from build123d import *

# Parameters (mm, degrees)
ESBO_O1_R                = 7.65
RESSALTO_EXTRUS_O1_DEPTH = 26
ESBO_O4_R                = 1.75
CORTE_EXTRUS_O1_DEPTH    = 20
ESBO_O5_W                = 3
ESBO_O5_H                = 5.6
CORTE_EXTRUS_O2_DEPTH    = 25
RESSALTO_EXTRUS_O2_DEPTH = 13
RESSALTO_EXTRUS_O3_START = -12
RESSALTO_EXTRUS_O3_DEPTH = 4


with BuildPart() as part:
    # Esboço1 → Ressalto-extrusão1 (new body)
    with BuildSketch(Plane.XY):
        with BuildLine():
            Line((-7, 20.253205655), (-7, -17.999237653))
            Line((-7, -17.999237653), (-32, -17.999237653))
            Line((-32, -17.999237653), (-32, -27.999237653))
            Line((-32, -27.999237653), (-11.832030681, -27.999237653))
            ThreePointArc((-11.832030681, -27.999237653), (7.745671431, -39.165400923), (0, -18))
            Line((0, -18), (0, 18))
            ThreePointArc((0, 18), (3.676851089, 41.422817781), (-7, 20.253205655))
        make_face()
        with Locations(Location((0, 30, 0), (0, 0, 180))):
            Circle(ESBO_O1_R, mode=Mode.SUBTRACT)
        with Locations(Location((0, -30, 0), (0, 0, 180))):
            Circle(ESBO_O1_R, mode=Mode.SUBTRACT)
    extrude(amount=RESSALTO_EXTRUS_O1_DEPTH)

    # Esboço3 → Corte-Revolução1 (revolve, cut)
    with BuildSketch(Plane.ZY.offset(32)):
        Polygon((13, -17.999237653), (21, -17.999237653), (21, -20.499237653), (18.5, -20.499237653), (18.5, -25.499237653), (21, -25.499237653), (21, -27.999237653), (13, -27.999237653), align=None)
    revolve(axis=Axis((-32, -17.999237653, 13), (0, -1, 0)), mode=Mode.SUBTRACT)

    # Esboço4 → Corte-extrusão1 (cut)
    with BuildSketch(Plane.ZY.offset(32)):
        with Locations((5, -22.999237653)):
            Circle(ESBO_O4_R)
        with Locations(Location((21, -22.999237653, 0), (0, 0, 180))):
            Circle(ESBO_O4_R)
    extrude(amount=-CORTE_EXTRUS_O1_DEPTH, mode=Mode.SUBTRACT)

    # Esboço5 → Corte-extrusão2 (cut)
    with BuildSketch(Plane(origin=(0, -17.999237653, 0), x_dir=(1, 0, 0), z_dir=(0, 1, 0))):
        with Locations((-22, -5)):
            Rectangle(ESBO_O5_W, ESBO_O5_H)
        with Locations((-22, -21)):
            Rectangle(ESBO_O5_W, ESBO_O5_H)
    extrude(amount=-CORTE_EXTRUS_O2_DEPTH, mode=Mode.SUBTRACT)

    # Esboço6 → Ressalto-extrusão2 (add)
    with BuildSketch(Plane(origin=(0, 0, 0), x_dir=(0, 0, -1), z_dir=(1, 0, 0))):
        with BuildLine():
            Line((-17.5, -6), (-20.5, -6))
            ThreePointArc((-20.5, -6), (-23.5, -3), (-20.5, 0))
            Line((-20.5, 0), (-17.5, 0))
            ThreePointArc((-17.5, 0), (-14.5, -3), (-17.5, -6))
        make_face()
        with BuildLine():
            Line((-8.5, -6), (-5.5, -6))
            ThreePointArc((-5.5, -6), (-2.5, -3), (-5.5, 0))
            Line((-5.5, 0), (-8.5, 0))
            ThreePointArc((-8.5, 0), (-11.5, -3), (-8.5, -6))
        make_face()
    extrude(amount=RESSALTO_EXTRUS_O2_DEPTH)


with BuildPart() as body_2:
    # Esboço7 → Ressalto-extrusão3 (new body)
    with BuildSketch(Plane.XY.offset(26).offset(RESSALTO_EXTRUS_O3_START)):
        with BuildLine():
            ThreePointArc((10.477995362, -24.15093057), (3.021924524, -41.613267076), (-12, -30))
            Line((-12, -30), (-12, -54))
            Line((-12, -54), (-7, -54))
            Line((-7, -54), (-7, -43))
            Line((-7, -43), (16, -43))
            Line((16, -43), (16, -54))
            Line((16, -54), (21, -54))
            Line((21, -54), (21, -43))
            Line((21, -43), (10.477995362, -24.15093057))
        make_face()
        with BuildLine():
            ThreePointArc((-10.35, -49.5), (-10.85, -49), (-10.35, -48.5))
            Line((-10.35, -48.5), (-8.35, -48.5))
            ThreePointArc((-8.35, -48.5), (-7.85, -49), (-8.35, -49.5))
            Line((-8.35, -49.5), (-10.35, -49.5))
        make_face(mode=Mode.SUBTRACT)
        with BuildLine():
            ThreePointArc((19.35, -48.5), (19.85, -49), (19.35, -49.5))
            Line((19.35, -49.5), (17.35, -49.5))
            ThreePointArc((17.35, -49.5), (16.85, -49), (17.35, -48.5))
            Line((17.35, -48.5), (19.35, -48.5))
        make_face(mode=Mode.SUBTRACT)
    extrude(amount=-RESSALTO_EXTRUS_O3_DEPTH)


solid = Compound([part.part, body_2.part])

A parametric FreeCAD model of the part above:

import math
import FreeCAD as App
import Part
import Sketcher
from FreeCAD import Vector

doc = App.newDocument("Part")
body = doc.addObject("PartDesign::Body", "Body")

# Sketch on XY plane
sketch1 = body.newObject("Sketcher::SketchObject", "Sketch")
sketch1.AttachmentSupport = (doc.getObject("XY_Plane"), [""])
sketch1.MapMode = "FlatFace"
sketch1.addGeometry([
    Part.LineSegment(Vector(-7, 20, 0), Vector(-7, -18, 0)),  # 0
    Part.LineSegment(Vector(-7, -18, 0), Vector(-32, -18, 0)),  # 1
    Part.LineSegment(Vector(-32, -18, 0), Vector(-32, -28, 0)),  # 2
    Part.LineSegment(Vector(-32, -28, 0), Vector(-12, -28, 0)),  # 3
    Part.ArcOfCircle(Part.Circle(Vector(0, -30, 0), Vector(0, 0, 1), 12), math.radians(170), math.radians(450)),  # 4
    Part.LineSegment(Vector(0, -18, 0), Vector(0, 18, 0)),  # 5
    Part.ArcOfCircle(Part.Circle(Vector(0, 30, 0), Vector(0, 0, 1), 12), math.radians(-90), math.radians(234)),  # 6
    Part.Circle(Vector(0, -30, 0), Vector(0, 0, 1), 8),  # 7
    Part.Circle(Vector(0, 30, 0), Vector(0, 0, 1), 8),  # 8
], False)
sketch1.addConstraint([
    Sketcher.Constraint("Coincident", 0, 2, 1, 1),
    Sketcher.Constraint("Coincident", 1, 2, 2, 1),
    Sketcher.Constraint("Coincident", 2, 2, 3, 1),
    Sketcher.Constraint("Coincident", 3, 2, 4, 1),
    Sketcher.Constraint("Coincident", 4, 2, 5, 1),
    Sketcher.Constraint("Coincident", 5, 2, 6, 1),
    Sketcher.Constraint("Coincident", 6, 2, 0, 1),
    Sketcher.Constraint("Vertical", 0),
    Sketcher.Constraint("Horizontal", 1),
    Sketcher.Constraint("Vertical", 2),
    Sketcher.Constraint("Horizontal", 3),
    Sketcher.Constraint("Vertical", 5),
    Sketcher.Constraint("Coincident", 7, 3, 4, 3),
    Sketcher.Constraint("Coincident", 8, 3, 6, 3),
    Sketcher.Constraint("Equal", 4, 6),
    Sketcher.Constraint("Equal", 7, 8),
    Sketcher.Constraint("Symmetric", 4, 3, 6, 3, -1, 1),
    Sketcher.Constraint("PointOnObject", 4, 3, -2),
    Sketcher.Constraint("PointOnObject", 4, 2, -2),
    Sketcher.Constraint("Radius", 4, 12.0),
    Sketcher.Constraint("Diameter", 7, 15.3),
    Sketcher.Constraint("DistanceX", 1, 2, 1, 1, 25.0),
    Sketcher.Constraint("DistanceY", 2, 2, 2, 1, 10.0),
    Sketcher.Constraint("DistanceY", 5, 1, 5, 2, 36.0),
    Sketcher.Constraint("DistanceX", 0, 2, -1, 1, 7.0),
    Sketcher.Constraint("DistanceX", 3, 1, 3, 2, 20.167969),
])
pad1 = body.newObject("PartDesign::Pad", "Pad")
pad1.Profile = sketch1
pad1.Length = 26

# Sketch on YZ plane
sketch2 = body.newObject("Sketcher::SketchObject", "Sketch001")
sketch2.AttachmentSupport = (doc.getObject("YZ_Plane"), [""])
sketch2.MapMode = "FlatFace"
sketch2.AttachmentOffset = App.Placement(Vector(0, 0, -32), App.Rotation())
sketch2.addGeometry([
    Part.LineSegment(Vector(-18, 21, 0), Vector(-18, 13, 0)),  # 0
    Part.LineSegment(Vector(-18, 13, 0), Vector(-28, 13, 0)),  # 1
    Part.LineSegment(Vector(-28, 13, 0), Vector(-28, 21, 0)),  # 2
    Part.LineSegment(Vector(-28, 21, 0), Vector(-25.5, 21, 0)),  # 3
    Part.LineSegment(Vector(-25.5, 21, 0), Vector(-25.5, 18.5, 0)),  # 4
    Part.LineSegment(Vector(-25.5, 18.5, 0), Vector(-20.5, 18.5, 0)),  # 5
    Part.LineSegment(Vector(-20.5, 18.5, 0), Vector(-20.5, 21, 0)),  # 6
    Part.LineSegment(Vector(-20.5, 21, 0), Vector(-18, 21, 0)),  # 7
], False)
sketch2.addGeometry(Part.LineSegment(Vector(-18, 13, 0), Vector(-28, 13, 0)), True)  # axis
sketch2.addConstraint([
    Sketcher.Constraint("Coincident", 0, 2, 1, 1),
    Sketcher.Constraint("Coincident", 1, 2, 2, 1),
    Sketcher.Constraint("Coincident", 2, 2, 3, 1),
    Sketcher.Constraint("Coincident", 3, 2, 4, 1),
    Sketcher.Constraint("Coincident", 4, 2, 5, 1),
    Sketcher.Constraint("Coincident", 5, 2, 6, 1),
    Sketcher.Constraint("Coincident", 6, 2, 7, 1),
    Sketcher.Constraint("Coincident", 7, 2, 0, 1),
    Sketcher.Constraint("Vertical", 0),
    Sketcher.Constraint("Horizontal", 1),
    Sketcher.Constraint("Vertical", 2),
    Sketcher.Constraint("Horizontal", 3),
    Sketcher.Constraint("Vertical", 4),
    Sketcher.Constraint("Horizontal", 5),
    Sketcher.Constraint("Vertical", 6),
    Sketcher.Constraint("Horizontal", 7),
    Sketcher.Constraint("Horizontal", 8),
    Sketcher.Constraint("Coincident", 8, 1, 0, 2),
    Sketcher.Constraint("Horizontal", 3, 2, 6, 2),
    Sketcher.Constraint("Vertical", 2, 2, 8, 2),
    Sketcher.Constraint("Equal", 3, 7),
    Sketcher.Constraint("Equal", 7, 4),
    Sketcher.Constraint("DistanceX", 1, 2, 1, 1, 10.0),
    Sketcher.Constraint("DistanceX", 5, 1, 5, 2, 5.0),
    Sketcher.Constraint("DistanceY", 0, 2, 0, 1, 8.0),
    Sketcher.Constraint("DistanceY", -1, 1, 0, 2, 13.0),
    Sketcher.Constraint("DistanceX", 0, 2, -1, 1, 17.999238),
])
groove = body.newObject("PartDesign::Groove", "Groove")
groove.Profile = sketch2
groove.ReferenceAxis = (sketch2, ["Axis0"])
groove.Angle = 360

# Sketch on YZ plane
sketch3 = body.newObject("Sketcher::SketchObject", "Sketch002")
sketch3.AttachmentSupport = (doc.getObject("YZ_Plane"), [""])
sketch3.MapMode = "FlatFace"
sketch3.AttachmentOffset = App.Placement(Vector(0, 0, -32), App.Rotation())
sketch3.addGeometry([
    Part.Circle(Vector(-23, 5, 0), Vector(0, 0, 1), 1.8),
    Part.Circle(Vector(-23, 21, 0), Vector(0, 0, 1), 1.8),
], False)
sketch3.addConstraint([
    Sketcher.Constraint("Equal", 0, 1),
    Sketcher.Constraint("Vertical", 0, 3, 1, 3),
    Sketcher.Constraint("Diameter", 0, 3.5),
    Sketcher.Constraint("DistanceY", -1, 1, 0, 3, 5.0),
    Sketcher.Constraint("DistanceY", -1, 1, 1, 3, 21.0),
    Sketcher.Constraint("DistanceX", 0, 3, -1, 1, 22.999238),
])
pocket1 = body.newObject("PartDesign::Pocket", "Pocket")
pocket1.Profile = sketch3
pocket1.Length = 20
pocket1.Reversed = True

# Sketch on XZ plane
sketch4 = body.newObject("Sketcher::SketchObject", "Sketch003")
sketch4.AttachmentSupport = (doc.getObject("XZ_Plane"), [""])
sketch4.MapMode = "FlatFace"
sketch4.AttachmentOffset = App.Placement(Vector(0, 0, 17.999238), App.Rotation())
sketch4.addGeometry([
    Part.LineSegment(Vector(-23.5, 2.2, 0), Vector(-23.5, 7.8, 0)),  # 0
    Part.LineSegment(Vector(-23.5, 7.8, 0), Vector(-20.5, 7.8, 0)),  # 1
    Part.LineSegment(Vector(-20.5, 7.8, 0), Vector(-20.5, 2.2, 0)),  # 2
    Part.LineSegment(Vector(-20.5, 2.2, 0), Vector(-23.5, 2.2, 0)),  # 3
    Part.LineSegment(Vector(-23.5, 18.2, 0), Vector(-23.5, 23.8, 0)),  # 4
    Part.LineSegment(Vector(-23.5, 23.8, 0), Vector(-20.5, 23.8, 0)),  # 5
    Part.LineSegment(Vector(-20.5, 23.8, 0), Vector(-20.5, 18.2, 0)),  # 6
    Part.LineSegment(Vector(-20.5, 18.2, 0), Vector(-23.5, 18.2, 0)),  # 7
], False)
sketch4.addConstraint([
    Sketcher.Constraint("Coincident", 0, 2, 1, 1),
    Sketcher.Constraint("Coincident", 1, 2, 2, 1),
    Sketcher.Constraint("Coincident", 2, 2, 3, 1),
    Sketcher.Constraint("Coincident", 3, 2, 0, 1),
    Sketcher.Constraint("Coincident", 4, 2, 5, 1),
    Sketcher.Constraint("Coincident", 5, 2, 6, 1),
    Sketcher.Constraint("Coincident", 6, 2, 7, 1),
    Sketcher.Constraint("Coincident", 7, 2, 4, 1),
    Sketcher.Constraint("Vertical", 0),
    Sketcher.Constraint("Horizontal", 1),
    Sketcher.Constraint("Vertical", 2),
    Sketcher.Constraint("Horizontal", 3),
    Sketcher.Constraint("Vertical", 4),
    Sketcher.Constraint("Horizontal", 5),
    Sketcher.Constraint("Vertical", 6),
    Sketcher.Constraint("Horizontal", 7),
    Sketcher.Constraint("Vertical", 3, 2, 4, 2),
    Sketcher.Constraint("Vertical", 2, 2, 5, 2),
    Sketcher.Constraint("Equal", 2, 4),
    Sketcher.Constraint("DistanceX", 1, 1, 1, 2, 3.0),
    Sketcher.Constraint("DistanceY", 0, 1, 0, 2, 5.6),
    Sketcher.Constraint("DistanceY", 0, 2, 4, 2, 16.0),
    Sketcher.Constraint("DistanceX", 0, 2, -1, 1, 23.5),
    Sketcher.Constraint("DistanceY", -1, 1, 0, 2, 7.8),
])
pocket2 = body.newObject("PartDesign::Pocket", "Pocket001")
pocket2.Profile = sketch4
pocket2.Length = 25
pocket2.Reversed = True

# Sketch on YZ plane
sketch5 = body.newObject("Sketcher::SketchObject", "Sketch004")
sketch5.AttachmentSupport = (doc.getObject("YZ_Plane"), [""])
sketch5.MapMode = "FlatFace"
sketch5.addGeometry([
    Part.LineSegment(Vector(-6, 20.5, 0), Vector(-6, 17.5, 0)),  # 0
    Part.ArcOfCircle(Part.Circle(Vector(-3, 17.5, 0), Vector(0, 0, 1), 3), math.radians(180), math.radians(360)),  # 1
    Part.LineSegment(Vector(0, 17.5, 0), Vector(0, 20.5, 0)),  # 2
    Part.ArcOfCircle(Part.Circle(Vector(-3, 20.5, 0), Vector(0, 0, 1), 3), math.radians(0), math.radians(180)),  # 3
    Part.LineSegment(Vector(-6, 8.5, 0), Vector(-6, 5.5, 0)),  # 4
    Part.ArcOfCircle(Part.Circle(Vector(-3, 5.5, 0), Vector(0, 0, 1), 3), math.radians(180), math.radians(360)),  # 5
    Part.LineSegment(Vector(0, 5.5, 0), Vector(0, 8.5, 0)),  # 6
    Part.ArcOfCircle(Part.Circle(Vector(-3, 8.5, 0), Vector(0, 0, 1), 3), math.radians(0), math.radians(180)),  # 7
], False)
sketch5.addConstraint([
    Sketcher.Constraint("Tangent", 0, 2, 1, 1),
    Sketcher.Constraint("Tangent", 1, 2, 2, 1),
    Sketcher.Constraint("Tangent", 2, 2, 3, 1),
    Sketcher.Constraint("Tangent", 3, 2, 0, 1),
    Sketcher.Constraint("Tangent", 4, 2, 5, 1),
    Sketcher.Constraint("Tangent", 5, 2, 6, 1),
    Sketcher.Constraint("Tangent", 6, 2, 7, 1),
    Sketcher.Constraint("Tangent", 7, 2, 4, 1),
    Sketcher.Constraint("Vertical", 0),
    Sketcher.Constraint("Vertical", 2),
    Sketcher.Constraint("Vertical", 4),
    Sketcher.Constraint("Vertical", 6),
    Sketcher.Constraint("Equal", 3, 5),
    Sketcher.Constraint("PointOnObject", 1, 2, -2),
    Sketcher.Constraint("PointOnObject", 5, 2, -2),
    Sketcher.Constraint("Equal", 2, 4),
    Sketcher.Constraint("Radius", 1, 3.0),
    Sketcher.Constraint("DistanceY", 0, 2, 0, 1, 3.0),
    Sketcher.Constraint("DistanceY", 5, 3, 1, 3, 12.0),
    Sketcher.Constraint("DistanceY", -1, 1, 1, 3, 17.5),
])
pad2 = body.newObject("PartDesign::Pad", "Pad001")
pad2.Profile = sketch5
pad2.Length = 13
body2 = doc.addObject("PartDesign::Body", "Body001")

# Sketch on XY plane
sketch6 = body2.newObject("Sketcher::SketchObject", "Sketch005")
sketch6.AttachmentSupport = (doc.getObject("XY_Plane001"), [""])
sketch6.MapMode = "FlatFace"
sketch6.AttachmentOffset = App.Placement(Vector(0, 0, 14), App.Rotation())
sketch6.addGeometry([
    Part.ArcOfCircle(Part.Circle(Vector(0, -30, 0), Vector(0, 0, 1), 12), math.radians(180), math.radians(389)),  # 0
    Part.LineSegment(Vector(-12, -30, 0), Vector(-12, -54, 0)),  # 1
    Part.LineSegment(Vector(-12, -54, 0), Vector(-7, -54, 0)),  # 2
    Part.LineSegment(Vector(-7, -54, 0), Vector(-7, -43, 0)),  # 3
    Part.LineSegment(Vector(-7, -43, 0), Vector(16, -43, 0)),  # 4
    Part.LineSegment(Vector(16, -43, 0), Vector(16, -54, 0)),  # 5
    Part.LineSegment(Vector(16, -54, 0), Vector(21, -54, 0)),  # 6
    Part.LineSegment(Vector(21, -54, 0), Vector(21, -43, 0)),  # 7
    Part.LineSegment(Vector(21, -43, 0), Vector(10.5, -24.2, 0)),  # 8
    Part.LineSegment(Vector(-8.3, -49.5, 0), Vector(-10.3, -49.5, 0)),  # 9
    Part.ArcOfCircle(Part.Circle(Vector(-10.3, -49, 0), Vector(0, 0, 1), 0.5), math.radians(90), math.radians(270)),  # 10
    Part.LineSegment(Vector(-10.3, -48.5, 0), Vector(-8.3, -48.5, 0)),  # 11
    Part.ArcOfCircle(Part.Circle(Vector(-8.3, -49, 0), Vector(0, 0, 1), 0.5), math.radians(-90), math.radians(90)),  # 12
    Part.LineSegment(Vector(17.4, -48.5, 0), Vector(19.4, -48.5, 0)),  # 13
    Part.ArcOfCircle(Part.Circle(Vector(19.4, -49, 0), Vector(0, 0, 1), 0.5), math.radians(-90), math.radians(90)),  # 14
    Part.LineSegment(Vector(19.4, -49.5, 0), Vector(17.4, -49.5, 0)),  # 15
    Part.ArcOfCircle(Part.Circle(Vector(17.4, -49, 0), Vector(0, 0, 1), 0.5), math.radians(90), math.radians(270)),  # 16
], False)
sketch6.addConstraint([
    Sketcher.Constraint("Tangent", 0, 1, 1, 1),
    Sketcher.Constraint("Coincident", 1, 2, 2, 1),
    Sketcher.Constraint("Coincident", 2, 2, 3, 1),
    Sketcher.Constraint("Coincident", 3, 2, 4, 1),
    Sketcher.Constraint("Coincident", 4, 2, 5, 1),
    Sketcher.Constraint("Coincident", 5, 2, 6, 1),
    Sketcher.Constraint("Coincident", 6, 2, 7, 1),
    Sketcher.Constraint("Coincident", 7, 2, 8, 1),
    Sketcher.Constraint("Tangent", 8, 2, 0, 2),
    Sketcher.Constraint("Tangent", 9, 2, 10, 2),
    Sketcher.Constraint("Tangent", 10, 1, 11, 1),
    Sketcher.Constraint("Tangent", 11, 2, 12, 2),
    Sketcher.Constraint("Tangent", 12, 1, 9, 1),
    Sketcher.Constraint("Tangent", 13, 2, 14, 2),
    Sketcher.Constraint("Tangent", 14, 1, 15, 1),
    Sketcher.Constraint("Tangent", 15, 2, 16, 2),
    Sketcher.Constraint("Tangent", 16, 1, 13, 1),
    Sketcher.Constraint("Vertical", 1),
    Sketcher.Constraint("Horizontal", 2),
    Sketcher.Constraint("Vertical", 3),
    Sketcher.Constraint("Horizontal", 4),
    Sketcher.Constraint("Vertical", 5),
    Sketcher.Constraint("Horizontal", 6),
    Sketcher.Constraint("Vertical", 7),
    Sketcher.Constraint("Horizontal", 9),
    Sketcher.Constraint("Horizontal", 11),
    Sketcher.Constraint("Horizontal", 13),
    Sketcher.Constraint("Horizontal", 15),
    Sketcher.Constraint("Equal", 12, 14),
    Sketcher.Constraint("PointOnObject", 0, 3, -2),
    Sketcher.Constraint("Horizontal", 12, 3, 14, 3),
    Sketcher.Constraint("Horizontal", 2, 2, 5, 2),
    Sketcher.Constraint("Horizontal", 4, 2, 7, 2),
    Sketcher.Constraint("Equal", 2, 6),
    Sketcher.Constraint("Equal", 11, 13),
    Sketcher.Constraint("Radius", 0, 12.0),
    Sketcher.Constraint("Radius", 10, 0.5),
    Sketcher.Constraint("DistanceX", 2, 1, 2, 2, 5.0),
    Sketcher.Constraint("DistanceX", 4, 1, 4, 2, 23.0),
    Sketcher.Constraint("DistanceX", 9, 2, 9, 1, 2.0),
    Sketcher.Constraint("DistanceY", 1, 2, 1, 1, 24.0),
    Sketcher.Constraint("DistanceY", 3, 1, 3, 2, 11.0),
    Sketcher.Constraint("DistanceY", 0, 3, -1, 1, 30.0),
    Sketcher.Constraint("DistanceY", 10, 3, -1, 1, 49.0),
    Sketcher.Constraint("DistanceX", 12, 3, 14, 3, 27.7),
    Sketcher.Constraint("DistanceX", 10, 3, -1, 1, 10.35),
])
pad3 = body2.newObject("PartDesign::Pad", "Pad002")
pad3.Profile = sketch6
pad3.Length = 4
pad3.Reversed = True

doc.recompute()
